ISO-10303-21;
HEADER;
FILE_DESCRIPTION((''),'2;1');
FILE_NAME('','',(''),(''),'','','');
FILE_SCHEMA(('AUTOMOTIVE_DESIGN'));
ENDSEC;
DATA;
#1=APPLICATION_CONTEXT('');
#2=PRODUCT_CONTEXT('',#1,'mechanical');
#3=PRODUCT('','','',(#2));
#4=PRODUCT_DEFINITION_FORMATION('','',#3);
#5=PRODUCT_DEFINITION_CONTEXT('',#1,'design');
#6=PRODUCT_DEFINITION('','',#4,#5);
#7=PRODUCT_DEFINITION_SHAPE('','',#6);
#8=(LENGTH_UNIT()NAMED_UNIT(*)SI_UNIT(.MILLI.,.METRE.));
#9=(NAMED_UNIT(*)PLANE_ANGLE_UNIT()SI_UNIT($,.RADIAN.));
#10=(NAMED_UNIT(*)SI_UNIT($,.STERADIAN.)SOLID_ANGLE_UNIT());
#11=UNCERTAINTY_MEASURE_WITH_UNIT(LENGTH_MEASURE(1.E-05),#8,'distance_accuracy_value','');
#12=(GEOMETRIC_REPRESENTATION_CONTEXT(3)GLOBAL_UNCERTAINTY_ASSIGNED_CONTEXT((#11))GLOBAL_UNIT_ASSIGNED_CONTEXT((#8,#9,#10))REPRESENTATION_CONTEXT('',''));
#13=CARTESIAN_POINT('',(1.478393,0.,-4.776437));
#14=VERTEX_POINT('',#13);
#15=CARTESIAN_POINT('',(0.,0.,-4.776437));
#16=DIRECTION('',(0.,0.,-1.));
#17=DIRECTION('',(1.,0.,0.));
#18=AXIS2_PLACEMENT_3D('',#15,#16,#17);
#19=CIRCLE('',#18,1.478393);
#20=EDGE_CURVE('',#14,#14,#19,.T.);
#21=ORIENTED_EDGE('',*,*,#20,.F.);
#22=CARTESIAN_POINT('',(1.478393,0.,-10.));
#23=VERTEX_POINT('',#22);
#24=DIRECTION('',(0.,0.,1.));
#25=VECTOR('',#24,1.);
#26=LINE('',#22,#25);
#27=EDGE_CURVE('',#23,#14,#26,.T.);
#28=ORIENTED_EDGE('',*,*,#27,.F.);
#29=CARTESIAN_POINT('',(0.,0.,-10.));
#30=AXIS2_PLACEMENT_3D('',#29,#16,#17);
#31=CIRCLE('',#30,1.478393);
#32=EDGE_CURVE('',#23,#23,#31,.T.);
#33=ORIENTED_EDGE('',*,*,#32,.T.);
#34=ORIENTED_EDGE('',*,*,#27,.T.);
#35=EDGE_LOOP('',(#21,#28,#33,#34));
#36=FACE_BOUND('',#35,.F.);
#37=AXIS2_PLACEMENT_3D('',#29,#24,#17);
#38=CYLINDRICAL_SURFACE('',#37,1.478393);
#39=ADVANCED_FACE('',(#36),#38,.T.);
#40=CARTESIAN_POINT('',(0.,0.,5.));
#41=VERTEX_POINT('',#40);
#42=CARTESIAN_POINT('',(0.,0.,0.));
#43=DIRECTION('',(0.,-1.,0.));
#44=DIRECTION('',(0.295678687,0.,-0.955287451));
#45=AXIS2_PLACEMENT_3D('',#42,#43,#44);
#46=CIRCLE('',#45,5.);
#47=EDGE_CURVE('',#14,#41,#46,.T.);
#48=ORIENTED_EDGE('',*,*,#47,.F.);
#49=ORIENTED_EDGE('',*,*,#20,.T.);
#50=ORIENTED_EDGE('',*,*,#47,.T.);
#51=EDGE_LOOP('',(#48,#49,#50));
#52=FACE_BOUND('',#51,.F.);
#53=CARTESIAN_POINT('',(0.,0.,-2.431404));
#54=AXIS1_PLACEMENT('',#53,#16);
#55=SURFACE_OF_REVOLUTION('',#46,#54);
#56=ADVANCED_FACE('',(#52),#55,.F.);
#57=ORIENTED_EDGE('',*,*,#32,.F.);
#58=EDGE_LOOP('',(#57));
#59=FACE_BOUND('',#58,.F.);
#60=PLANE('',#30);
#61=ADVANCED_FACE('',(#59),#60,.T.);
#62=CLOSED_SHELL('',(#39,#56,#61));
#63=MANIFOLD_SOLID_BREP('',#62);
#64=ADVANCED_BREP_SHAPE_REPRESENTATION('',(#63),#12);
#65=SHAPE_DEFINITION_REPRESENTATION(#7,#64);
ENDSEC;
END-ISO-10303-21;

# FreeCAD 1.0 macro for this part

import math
import FreeCAD as App
import Part
import Sketcher
Q = App.Units.Quantity

doc = App.newDocument("Part")
body = doc.addObject("PartDesign::Body", "Body")

sketch1 = body.newObject("Sketcher::SketchObject", "Sketch")
sketch1.AttachmentSupport = (doc.getObject("XZ_Plane"), [""])
sketch1.MapMode = "FlatFace"
sketch1.addGeometry(Part.LineSegment(App.Vector(1.5, -10, 0), App.Vector(1.5, -4.8, 0)), False)
sketch1.addGeometry(Part.ArcOfCircle(Part.Circle(App.Vector(0, 0, 0), App.Vector(0, 0, 1), 5), math.radians(-73), math.radians(90)), False)
sketch1.addGeometry(Part.LineSegment(App.Vector(0, 5, 0), App.Vector(0, -10, 0)), False)
sketch1.addGeometry(Part.LineSegment(App.Vector(0, -10, 0), App.Vector(1.5, -10, 0)), False)
sketch1.addConstraint(Sketcher.Constraint("Coincident", 0, 2, 1, 1))
sketch1.addConstraint(Sketcher.Constraint("Coincident", 1, 2, 2, 1))
sketch1.addConstraint(Sketcher.Constraint("Coincident", 2, 2, 3, 1))
sketch1.addConstraint(Sketcher.Constraint("Coincident", 3, 2, 0, 1))
sketch1.addConstraint(Sketcher.Constraint("Vertical", 0))
sketch1.addConstraint(Sketcher.Constraint("Vertical", 2))
sketch1.addConstraint(Sketcher.Constraint("Horizontal", 3))
sketch1.addConstraint(Sketcher.Constraint("Coincident", 1, 3, -1, 1))
sketch1.addConstraint(Sketcher.Constraint("PointOnObject", 1, 2, -2))
sketch1.addConstraint(Sketcher.Constraint("Radius", 1, Q("5 mm")))
sketch1.addConstraint(Sketcher.Constraint("DistanceY", 2, 2, 2, 1, Q("15 mm")))
sketch1.addConstraint(Sketcher.Constraint("DistanceX", 3, 1, 3, 2, Q("1.478393 mm")))
revolution = body.newObject("PartDesign::Revolution", "Revolution")
revolution.Profile = sketch1
revolution.ReferenceAxis = (sketch1, ["V_Axis"])
revolution.Angle = 360

doc.recompute()
